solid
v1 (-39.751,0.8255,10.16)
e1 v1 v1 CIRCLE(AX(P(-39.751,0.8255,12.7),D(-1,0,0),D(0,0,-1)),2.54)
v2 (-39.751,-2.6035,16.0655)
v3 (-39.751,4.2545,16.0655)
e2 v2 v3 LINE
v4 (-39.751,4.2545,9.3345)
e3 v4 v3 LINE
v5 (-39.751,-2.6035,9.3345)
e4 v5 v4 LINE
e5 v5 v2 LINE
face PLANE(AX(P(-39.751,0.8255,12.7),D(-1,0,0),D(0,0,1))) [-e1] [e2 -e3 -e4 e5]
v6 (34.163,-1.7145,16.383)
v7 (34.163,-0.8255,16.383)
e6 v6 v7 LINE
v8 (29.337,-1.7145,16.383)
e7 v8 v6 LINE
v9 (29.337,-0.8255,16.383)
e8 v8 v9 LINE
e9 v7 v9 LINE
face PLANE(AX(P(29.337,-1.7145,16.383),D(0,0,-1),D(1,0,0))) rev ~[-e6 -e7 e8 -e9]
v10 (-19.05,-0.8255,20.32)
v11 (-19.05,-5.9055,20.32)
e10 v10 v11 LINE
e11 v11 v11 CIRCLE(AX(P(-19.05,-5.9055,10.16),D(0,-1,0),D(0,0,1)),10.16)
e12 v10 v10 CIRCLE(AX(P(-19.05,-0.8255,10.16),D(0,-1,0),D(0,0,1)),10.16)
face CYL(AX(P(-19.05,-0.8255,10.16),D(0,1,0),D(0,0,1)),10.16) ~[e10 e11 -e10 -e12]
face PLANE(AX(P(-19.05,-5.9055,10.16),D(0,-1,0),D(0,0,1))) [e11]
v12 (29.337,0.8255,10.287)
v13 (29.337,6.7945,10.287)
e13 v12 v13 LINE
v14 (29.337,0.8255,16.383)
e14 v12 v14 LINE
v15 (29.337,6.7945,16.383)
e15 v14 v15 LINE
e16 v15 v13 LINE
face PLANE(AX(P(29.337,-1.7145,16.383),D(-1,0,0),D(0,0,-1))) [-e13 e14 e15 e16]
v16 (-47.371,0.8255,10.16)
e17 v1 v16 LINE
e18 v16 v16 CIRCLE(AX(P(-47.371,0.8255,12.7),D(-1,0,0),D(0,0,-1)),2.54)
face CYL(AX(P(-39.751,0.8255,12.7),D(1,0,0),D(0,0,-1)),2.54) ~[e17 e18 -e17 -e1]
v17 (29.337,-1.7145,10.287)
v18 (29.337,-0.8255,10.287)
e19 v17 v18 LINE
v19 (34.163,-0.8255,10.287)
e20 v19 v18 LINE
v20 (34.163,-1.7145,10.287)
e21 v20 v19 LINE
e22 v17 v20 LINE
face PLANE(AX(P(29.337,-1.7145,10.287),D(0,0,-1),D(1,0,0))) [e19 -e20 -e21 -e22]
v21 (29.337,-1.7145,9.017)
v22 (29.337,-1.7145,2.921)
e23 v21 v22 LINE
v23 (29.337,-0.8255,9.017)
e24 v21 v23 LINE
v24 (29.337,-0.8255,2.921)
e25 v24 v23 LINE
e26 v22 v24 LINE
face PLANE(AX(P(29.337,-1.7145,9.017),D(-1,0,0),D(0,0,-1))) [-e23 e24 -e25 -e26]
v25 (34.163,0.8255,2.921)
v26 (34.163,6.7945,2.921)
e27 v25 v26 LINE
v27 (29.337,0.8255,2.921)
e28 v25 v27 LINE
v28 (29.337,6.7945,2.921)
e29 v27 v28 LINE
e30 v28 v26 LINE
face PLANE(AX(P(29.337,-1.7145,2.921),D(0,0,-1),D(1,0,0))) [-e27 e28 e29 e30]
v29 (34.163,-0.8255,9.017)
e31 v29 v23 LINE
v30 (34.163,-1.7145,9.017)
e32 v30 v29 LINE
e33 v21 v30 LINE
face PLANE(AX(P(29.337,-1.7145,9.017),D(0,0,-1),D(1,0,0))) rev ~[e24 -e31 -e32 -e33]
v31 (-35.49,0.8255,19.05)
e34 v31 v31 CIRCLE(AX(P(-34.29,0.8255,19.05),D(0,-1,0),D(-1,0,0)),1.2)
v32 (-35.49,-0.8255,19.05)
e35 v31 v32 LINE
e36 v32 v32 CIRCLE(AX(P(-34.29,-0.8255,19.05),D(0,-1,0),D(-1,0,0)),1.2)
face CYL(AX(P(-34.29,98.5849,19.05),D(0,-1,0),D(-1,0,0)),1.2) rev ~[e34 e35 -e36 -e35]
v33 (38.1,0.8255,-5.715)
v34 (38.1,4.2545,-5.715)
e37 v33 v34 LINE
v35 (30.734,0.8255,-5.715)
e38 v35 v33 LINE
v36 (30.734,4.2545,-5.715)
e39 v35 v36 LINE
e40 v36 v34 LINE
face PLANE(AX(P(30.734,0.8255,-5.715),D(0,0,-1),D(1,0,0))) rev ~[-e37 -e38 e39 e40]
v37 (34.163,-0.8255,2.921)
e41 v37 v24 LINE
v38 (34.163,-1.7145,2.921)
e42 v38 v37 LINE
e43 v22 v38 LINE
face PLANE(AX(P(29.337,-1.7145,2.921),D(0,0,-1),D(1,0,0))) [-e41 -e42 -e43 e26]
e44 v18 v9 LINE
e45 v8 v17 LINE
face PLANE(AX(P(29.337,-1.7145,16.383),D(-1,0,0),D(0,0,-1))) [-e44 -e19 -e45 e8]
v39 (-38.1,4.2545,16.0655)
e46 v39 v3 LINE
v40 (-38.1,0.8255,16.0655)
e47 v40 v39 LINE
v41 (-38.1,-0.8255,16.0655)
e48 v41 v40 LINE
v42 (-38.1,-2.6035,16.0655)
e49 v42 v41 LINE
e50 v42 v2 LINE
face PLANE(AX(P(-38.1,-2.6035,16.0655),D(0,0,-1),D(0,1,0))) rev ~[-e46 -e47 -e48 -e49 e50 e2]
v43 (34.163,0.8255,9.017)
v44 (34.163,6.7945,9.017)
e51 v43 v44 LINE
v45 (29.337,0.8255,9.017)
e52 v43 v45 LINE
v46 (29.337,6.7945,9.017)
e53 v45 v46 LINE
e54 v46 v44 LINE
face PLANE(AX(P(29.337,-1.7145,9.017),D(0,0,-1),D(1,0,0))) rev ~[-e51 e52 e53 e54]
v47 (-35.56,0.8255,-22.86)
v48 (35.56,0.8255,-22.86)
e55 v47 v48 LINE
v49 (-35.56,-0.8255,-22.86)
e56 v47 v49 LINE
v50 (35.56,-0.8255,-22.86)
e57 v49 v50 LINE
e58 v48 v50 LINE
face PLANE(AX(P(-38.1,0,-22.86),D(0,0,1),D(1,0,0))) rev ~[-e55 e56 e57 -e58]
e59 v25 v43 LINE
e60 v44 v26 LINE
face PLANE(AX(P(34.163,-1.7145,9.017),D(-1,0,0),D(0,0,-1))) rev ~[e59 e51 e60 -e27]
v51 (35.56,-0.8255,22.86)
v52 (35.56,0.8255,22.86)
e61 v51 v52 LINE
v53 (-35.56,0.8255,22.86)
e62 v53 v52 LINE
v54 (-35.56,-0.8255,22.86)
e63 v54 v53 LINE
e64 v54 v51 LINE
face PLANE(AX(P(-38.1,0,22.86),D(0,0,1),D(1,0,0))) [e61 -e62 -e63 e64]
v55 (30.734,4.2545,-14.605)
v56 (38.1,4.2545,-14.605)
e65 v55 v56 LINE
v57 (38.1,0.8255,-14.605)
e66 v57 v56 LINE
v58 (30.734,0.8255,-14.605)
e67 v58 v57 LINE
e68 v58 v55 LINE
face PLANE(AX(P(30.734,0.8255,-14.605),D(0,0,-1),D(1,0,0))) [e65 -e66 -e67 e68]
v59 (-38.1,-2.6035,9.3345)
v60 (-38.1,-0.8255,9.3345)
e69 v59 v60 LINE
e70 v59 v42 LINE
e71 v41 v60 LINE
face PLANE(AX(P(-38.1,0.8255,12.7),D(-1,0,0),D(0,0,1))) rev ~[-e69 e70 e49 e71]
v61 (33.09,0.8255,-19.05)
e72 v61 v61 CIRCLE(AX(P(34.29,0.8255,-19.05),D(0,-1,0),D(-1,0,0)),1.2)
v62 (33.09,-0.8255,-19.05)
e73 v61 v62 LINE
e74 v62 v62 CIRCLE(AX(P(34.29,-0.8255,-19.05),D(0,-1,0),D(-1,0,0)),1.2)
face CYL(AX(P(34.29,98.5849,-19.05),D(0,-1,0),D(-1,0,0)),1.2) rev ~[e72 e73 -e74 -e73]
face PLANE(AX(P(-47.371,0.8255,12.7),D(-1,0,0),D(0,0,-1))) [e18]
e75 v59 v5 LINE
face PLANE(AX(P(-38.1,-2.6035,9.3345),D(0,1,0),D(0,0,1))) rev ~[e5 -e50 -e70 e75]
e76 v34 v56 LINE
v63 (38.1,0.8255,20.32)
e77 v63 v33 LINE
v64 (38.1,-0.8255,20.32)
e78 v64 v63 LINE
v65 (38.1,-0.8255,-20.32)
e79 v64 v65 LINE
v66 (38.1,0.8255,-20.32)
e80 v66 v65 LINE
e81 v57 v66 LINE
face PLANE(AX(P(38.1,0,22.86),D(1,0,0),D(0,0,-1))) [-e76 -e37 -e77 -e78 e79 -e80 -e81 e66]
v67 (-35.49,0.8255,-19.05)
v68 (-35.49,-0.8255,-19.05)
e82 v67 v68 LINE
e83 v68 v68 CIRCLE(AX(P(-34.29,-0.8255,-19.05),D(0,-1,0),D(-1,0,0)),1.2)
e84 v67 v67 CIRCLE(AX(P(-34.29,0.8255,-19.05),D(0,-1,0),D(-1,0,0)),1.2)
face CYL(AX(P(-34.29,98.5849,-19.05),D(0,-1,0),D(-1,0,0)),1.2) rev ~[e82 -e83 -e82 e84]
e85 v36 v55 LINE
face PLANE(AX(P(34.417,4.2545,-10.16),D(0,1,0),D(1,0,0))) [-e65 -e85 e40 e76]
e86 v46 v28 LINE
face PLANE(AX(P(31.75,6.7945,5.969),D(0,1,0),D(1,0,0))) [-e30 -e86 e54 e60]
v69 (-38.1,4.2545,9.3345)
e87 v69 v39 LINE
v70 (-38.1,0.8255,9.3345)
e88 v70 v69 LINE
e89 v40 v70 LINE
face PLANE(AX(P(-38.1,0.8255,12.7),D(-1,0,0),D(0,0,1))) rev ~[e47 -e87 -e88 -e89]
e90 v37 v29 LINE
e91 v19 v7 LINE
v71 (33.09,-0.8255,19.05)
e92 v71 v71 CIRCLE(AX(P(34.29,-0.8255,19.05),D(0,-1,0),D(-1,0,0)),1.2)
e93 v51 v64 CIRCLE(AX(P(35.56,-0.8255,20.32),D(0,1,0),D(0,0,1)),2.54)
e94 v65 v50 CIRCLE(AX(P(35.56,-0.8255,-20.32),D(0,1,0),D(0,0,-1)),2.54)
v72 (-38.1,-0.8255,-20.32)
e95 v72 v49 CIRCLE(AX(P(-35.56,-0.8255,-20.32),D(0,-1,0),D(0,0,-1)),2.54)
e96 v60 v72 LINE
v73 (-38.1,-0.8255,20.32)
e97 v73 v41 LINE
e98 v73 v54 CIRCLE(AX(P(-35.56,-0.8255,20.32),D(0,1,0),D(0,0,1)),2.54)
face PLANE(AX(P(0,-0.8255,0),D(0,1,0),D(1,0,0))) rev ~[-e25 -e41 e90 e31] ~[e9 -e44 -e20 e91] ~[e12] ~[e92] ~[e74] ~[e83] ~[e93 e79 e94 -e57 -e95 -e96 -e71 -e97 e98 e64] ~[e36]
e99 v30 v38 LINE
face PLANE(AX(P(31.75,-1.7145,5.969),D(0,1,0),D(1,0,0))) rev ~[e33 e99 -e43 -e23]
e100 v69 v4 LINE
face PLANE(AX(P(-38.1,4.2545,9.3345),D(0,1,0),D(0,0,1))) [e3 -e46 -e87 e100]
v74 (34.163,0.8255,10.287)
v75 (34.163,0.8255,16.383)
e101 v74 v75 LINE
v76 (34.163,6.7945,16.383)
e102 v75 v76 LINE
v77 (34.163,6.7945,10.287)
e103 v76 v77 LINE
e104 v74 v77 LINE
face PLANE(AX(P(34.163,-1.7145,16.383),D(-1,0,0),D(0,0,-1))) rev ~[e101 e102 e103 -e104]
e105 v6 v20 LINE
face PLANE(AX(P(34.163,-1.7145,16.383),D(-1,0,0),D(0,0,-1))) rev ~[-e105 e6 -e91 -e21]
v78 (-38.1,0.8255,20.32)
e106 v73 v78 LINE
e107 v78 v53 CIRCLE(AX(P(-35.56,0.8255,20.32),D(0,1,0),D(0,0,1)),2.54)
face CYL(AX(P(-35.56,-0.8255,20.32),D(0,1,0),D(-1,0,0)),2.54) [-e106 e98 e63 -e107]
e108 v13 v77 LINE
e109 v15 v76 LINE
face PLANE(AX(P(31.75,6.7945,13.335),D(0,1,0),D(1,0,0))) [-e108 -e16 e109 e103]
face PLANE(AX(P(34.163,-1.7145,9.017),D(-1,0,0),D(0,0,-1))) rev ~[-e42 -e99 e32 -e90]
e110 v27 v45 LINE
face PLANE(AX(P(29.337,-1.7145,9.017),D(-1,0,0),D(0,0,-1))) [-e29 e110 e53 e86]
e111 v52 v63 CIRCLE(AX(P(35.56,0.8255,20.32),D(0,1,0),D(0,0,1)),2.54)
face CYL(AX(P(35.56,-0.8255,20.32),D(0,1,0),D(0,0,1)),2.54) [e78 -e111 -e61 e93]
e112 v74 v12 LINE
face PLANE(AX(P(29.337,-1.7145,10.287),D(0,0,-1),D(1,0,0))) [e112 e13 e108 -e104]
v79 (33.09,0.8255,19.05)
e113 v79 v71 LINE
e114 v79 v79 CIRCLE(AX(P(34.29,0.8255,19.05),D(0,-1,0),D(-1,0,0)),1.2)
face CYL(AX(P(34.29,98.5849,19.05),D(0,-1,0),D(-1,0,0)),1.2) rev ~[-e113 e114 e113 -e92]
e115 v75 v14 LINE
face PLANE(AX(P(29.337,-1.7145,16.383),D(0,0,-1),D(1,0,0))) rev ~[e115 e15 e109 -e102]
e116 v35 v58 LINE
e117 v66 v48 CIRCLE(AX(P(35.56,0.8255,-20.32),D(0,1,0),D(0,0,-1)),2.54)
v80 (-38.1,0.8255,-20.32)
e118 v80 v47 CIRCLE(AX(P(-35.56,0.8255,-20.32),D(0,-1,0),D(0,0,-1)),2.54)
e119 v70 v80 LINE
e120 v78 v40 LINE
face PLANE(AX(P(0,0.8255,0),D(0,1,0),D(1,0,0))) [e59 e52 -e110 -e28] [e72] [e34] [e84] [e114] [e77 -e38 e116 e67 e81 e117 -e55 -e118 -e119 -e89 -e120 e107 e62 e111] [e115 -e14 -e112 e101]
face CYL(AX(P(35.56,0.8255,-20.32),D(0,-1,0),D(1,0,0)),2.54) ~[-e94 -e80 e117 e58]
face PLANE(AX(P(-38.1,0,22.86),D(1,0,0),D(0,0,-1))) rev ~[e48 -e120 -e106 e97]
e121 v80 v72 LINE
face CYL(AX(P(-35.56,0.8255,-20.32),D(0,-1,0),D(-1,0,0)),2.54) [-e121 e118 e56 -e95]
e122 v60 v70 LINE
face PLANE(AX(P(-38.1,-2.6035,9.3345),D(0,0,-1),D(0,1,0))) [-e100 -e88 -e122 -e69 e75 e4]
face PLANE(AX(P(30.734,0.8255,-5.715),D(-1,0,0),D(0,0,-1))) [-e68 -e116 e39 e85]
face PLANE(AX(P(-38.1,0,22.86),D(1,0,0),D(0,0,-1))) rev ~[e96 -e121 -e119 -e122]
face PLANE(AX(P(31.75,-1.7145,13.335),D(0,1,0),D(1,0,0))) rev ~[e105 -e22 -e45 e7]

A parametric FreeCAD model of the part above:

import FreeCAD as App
import Part
import Sketcher

V = App.Vector
Q = App.Units.Quantity


def edges_at(feature, points):
    """Names of the edges that pass closest to the given points."""
    edges = feature.Shape.Edges
    near = lambda p: min(range(len(edges)), key=lambda i: edges[i].distToShape(Part.Vertex(*p))[0])
    return sorted({f"Edge{near(p) + 1}" for p in points})

doc = App.newDocument("Part")
body = doc.addObject("PartDesign::Body", "Body")

# Sketch on XZ plane
sketch1 = body.newObject("Sketcher::SketchObject", "Sketch")
sketch1.AttachmentSupport = (doc.getObject("XZ_Plane"), [""])
sketch1.MapMode = "FlatFace"
sketch1.addGeometry(Part.LineSegment(V(-38, -23, 0), V(-38, 23, 0)), False)
sketch1.addGeometry(Part.LineSegment(V(-38, 23, 0), V(38, 23, 0)), False)
sketch1.addGeometry(Part.LineSegment(V(38, 23, 0), V(38, -23, 0)), False)
sketch1.addGeometry(Part.LineSegment(V(38, -23, 0), V(-38, -23, 0)), False)
sketch1.addConstraint(Sketcher.Constraint("Coincident", 0, 2, 1, 1))
sketch1.addConstraint(Sketcher.Constraint("Coincident", 1, 2, 2, 1))
sketch1.addConstraint(Sketcher.Constraint("Coincident", 2, 2, 3, 1))
sketch1.addConstraint(Sketcher.Constraint("Coincident", 3, 2, 0, 1))
sketch1.addConstraint(Sketcher.Constraint("Vertical", 0))
sketch1.addConstraint(Sketcher.Constraint("Horizontal", 1))
sketch1.addConstraint(Sketcher.Constraint("Vertical", 2))
sketch1.addConstraint(Sketcher.Constraint("Horizontal", 3))
sketch1.addConstraint(Sketcher.Constraint("Symmetric", 0, 2, 2, 2, -1, 1))
sketch1.addConstraint(Sketcher.Constraint("DistanceX", 1, 1, 1, 2, Q("3 in")))
sketch1.addConstraint(Sketcher.Constraint("DistanceY", 0, 1, 0, 2, Q("1.8 in")))
pad1 = body.newObject("PartDesign::Pad", "Pad")
pad1.Profile = sketch1
pad1.Length = Q("0.065 in")
pad1.Midplane = True

# Sketch on XZ plane
sketch2 = body.newObject("Sketcher::SketchObject", "Sketch001")
sketch2.AttachmentSupport = (doc.getObject("XZ_Plane"), [""])
sketch2.MapMode = "FlatFace"
sketch2.AttachmentOffset = App.Placement(V(0, 0, 0.0325 * 25.4), App.Rotation())
sketch2.addGeometry(Part.Circle(V(-19, 10, 0), V(0, 0, 1), 10), False)
sketch2.addConstraint(Sketcher.Constraint("Diameter", 0, Q("0.8 in")))
sketch2.addConstraint(Sketcher.Constraint("DistanceY", -1, 1, 0, 3, Q("0.4 in")))
sketch2.addConstraint(Sketcher.Constraint("DistanceX", 0, 3, -1, 1, Q("0.75 in")))
pad2 = body.newObject("PartDesign::Pad", "Pad001")
pad2.Profile = sketch2
pad2.Length = Q("0.2 in")

# Sketch on YZ plane
sketch3 = body.newObject("Sketcher::SketchObject", "Sketch002")
sketch3.AttachmentSupport = (doc.getObject("YZ_Plane"), [""])
sketch3.MapMode = "FlatFace"
sketch3.AttachmentOffset = App.Placement(V(0, 0, -1.5 * 25.4), App.Rotation())
sketch3.addGeometry(Part.LineSegment(V(4, 9, 0), V(-3, 9, 0)), False)
sketch3.addGeometry(Part.LineSegment(V(-3, 9, 0), V(-3, 16, 0)), False)
sketch3.addGeometry(Part.LineSegment(V(-3, 16, 0), V(4, 16, 0)), False)
sketch3.addGeometry(Part.LineSegment(V(4, 16, 0), V(4, 9, 0)), False)
sketch3.addConstraint(Sketcher.Constraint("Coincident", 0, 2, 1, 1))
sketch3.addConstraint(Sketcher.Constraint("Coincident", 1, 2, 2, 1))
sketch3.addConstraint(Sketcher.Constraint("Coincident", 2, 2, 3, 1))
sketch3.addConstraint(Sketcher.Constraint("Coincident", 3, 2, 0, 1))
sketch3.addConstraint(Sketcher.Constraint("Horizontal", 0))
sketch3.addConstraint(Sketcher.Constraint("Vertical", 1))
sketch3.addConstraint(Sketcher.Constraint("Horizontal", 2))
sketch3.addConstraint(Sketcher.Constraint("Vertical", 3))
sketch3.addConstraint(Sketcher.Constraint("DistanceX", 0, 2, 0, 1, Q("0.27 in")))
sketch3.addConstraint(Sketcher.Constraint("DistanceY", 1, 1, 1, 2, Q("0.265 in")))
sketch3.addConstraint(Sketcher.Constraint("DistanceX", 0, 2, -1, 1, Q("0.1025 in")))
sketch3.addConstraint(Sketcher.Constraint("DistanceY", -1, 1, 0, 2, Q("0.3675 in")))
pad3 = body.newObject("PartDesign::Pad", "Pad002")
pad3.Profile = sketch3
pad3.Length = Q("0.065 in")
pad3.Reversed = True

# Sketch on YZ plane
sketch4 = body.newObject("Sketcher::SketchObject", "Sketch003")
sketch4.AttachmentSupport = (doc.getObject("YZ_Plane"), [""])
sketch4.MapMode = "FlatFace"
sketch4.AttachmentOffset = App.Placement(V(0, 0, -1.565 * 25.4), App.Rotation())
sketch4.addGeometry(Part.Circle(V(0.8, 12.7, 0), V(0, 0, 1), 2.5), False)
sketch4.addConstraint(Sketcher.Constraint("Diameter", 0, Q("0.2 in")))
sketch4.addConstraint(Sketcher.Constraint("DistanceY", -1, 1, 0, 3, Q("0.5 in")))
sketch4.addConstraint(Sketcher.Constraint("DistanceX", -1, 1, 0, 3, Q("0.0325 in")))
pad4 = body.newObject("PartDesign::Pad", "Pad003")
pad4.Profile = sketch4
pad4.Length = Q("0.3 in")
pad4.Reversed = True

# Sketch on XZ plane
sketch5 = body.newObject("Sketcher::SketchObject", "Sketch004")
sketch5.AttachmentSupport = (doc.getObject("XZ_Plane"), [""])
sketch5.MapMode = "FlatFace"
sketch5.AttachmentOffset = App.Placement(V(0, 0, -0.0325 * 25.4), App.Rotation())
sketch5.addGeometry(Part.LineSegment(V(29.3, 10.3, 0), V(29.3, 16.4, 0)), False)
sketch5.addGeometry(Part.LineSegment(V(29.3, 16.4, 0), V(34.2, 16.4, 0)), False)
sketch5.addGeometry(Part.LineSegment(V(34.2, 16.4, 0), V(34.2, 10.3, 0)), False)
sketch5.addGeometry(Part.LineSegment(V(34.2, 10.3, 0), V(29.3, 10.3, 0)), False)
sketch5.addGeometry(Part.LineSegment(V(29.3, 2.9, 0), V(29.3, 9, 0)), False)
sketch5.addGeometry(Part.LineSegment(V(29.3, 9, 0), V(34.2, 9, 0)), False)
sketch5.addGeometry(Part.LineSegment(V(34.2, 9, 0), V(34.2, 2.9, 0)), False)
sketch5.addGeometry(Part.LineSegment(V(34.2, 2.9, 0), V(29.3, 2.9, 0)), False)
sketch5.addConstraint(Sketcher.Constraint("Coincident", 0, 2, 1, 1))
sketch5.addConstraint(Sketcher.Constraint("Coincident", 1, 2, 2, 1))
sketch5.addConstraint(Sketcher.Constraint("Coincident", 2, 2, 3, 1))
sketch5.addConstraint(Sketcher.Constraint("Coincident", 3, 2, 0, 1))
sketch5.addConstraint(Sketcher.Constraint("Coincident", 4, 2, 5, 1))
sketch5.addConstraint(Sketcher.Constraint("Coincident", 5, 2, 6, 1))
sketch5.addConstraint(Sketcher.Constraint("Coincident", 6, 2, 7, 1))
sketch5.addConstraint(Sketcher.Constraint("Coincident", 7, 2, 4, 1))
sketch5.addConstraint(Sketcher.Constraint("Vertical", 0))
sketch5.addConstraint(Sketcher.Constraint("Horizontal", 1))
sketch5.addConstraint(Sketcher.Constraint("Vertical", 2))
sketch5.addConstraint(Sketcher.Constraint("Horizontal", 3))
sketch5.addConstraint(Sketcher.Constraint("Vertical", 4))
sketch5.addConstraint(Sketcher.Constraint("Horizontal", 5))
sketch5.addConstraint(Sketcher.Constraint("Vertical", 6))
sketch5.addConstraint(Sketcher.Constraint("Horizontal", 7))
sketch5.addConstraint(Sketcher.Constraint("Vertical", 3, 2, 4, 2))
sketch5.addConstraint(Sketcher.Constraint("Vertical", 2, 2, 5, 2))
sketch5.addConstraint(Sketcher.Constraint("Equal", 2, 4))
sketch5.addConstraint(Sketcher.Constraint("DistanceX", 1, 1, 1, 2, Q("0.19 in")))
sketch5.addConstraint(Sketcher.Constraint("DistanceY", 0, 1, 0, 2, Q("0.24 in")))
sketch5.addConstraint(Sketcher.Constraint("DistanceY", 4, 2, 3, 2, Q("0.05 in")))
sketch5.addConstraint(Sketcher.Constraint("DistanceX", -1, 1, 0, 2, Q("1.155 in")))
sketch5.addConstraint(Sketcher.Constraint("DistanceY", -1, 1, 0, 2, Q("0.645 in")))
pad5 = body.newObject("PartDesign::Pad", "Pad004")
pad5.Profile = sketch5
pad5.Type = "TwoLengths"
pad5.Length = Q("0.235 in")
pad5.Length2 = Q("0.1 in")
pad5.Reversed = True

# Sketch on XZ plane
sketch6 = body.newObject("Sketcher::SketchObject", "Sketch005")
sketch6.AttachmentSupport = (doc.getObject("XZ_Plane"), [""])
sketch6.MapMode = "FlatFace"
sketch6.AttachmentOffset = App.Placement(V(0, 0, -0.0325 * 25.4), App.Rotation())
sketch6.addGeometry(Part.LineSegment(V(31, -15, 0), V(31, -6, 0)), False)
sketch6.addGeometry(Part.LineSegment(V(31, -6, 0), V(38, -6, 0)), False)
sketch6.addGeometry(Part.LineSegment(V(38, -6, 0), V(38, -15, 0)), False)
sketch6.addGeometry(Part.LineSegment(V(38, -15, 0), V(31, -15, 0)), False)
sketch6.addConstraint(Sketcher.Constraint("Coincident", 0, 2, 1, 1))
sketch6.addConstraint(Sketcher.Constraint("Coincident", 1, 2, 2, 1))
sketch6.addConstraint(Sketcher.Constraint("Coincident", 2, 2, 3, 1))
sketch6.addConstraint(Sketcher.Constraint("Coincident", 3, 2, 0, 1))
sketch6.addConstraint(Sketcher.Constraint("Vertical", 0))
sketch6.addConstraint(Sketcher.Constraint("Horizontal", 1))
sketch6.addConstraint(Sketcher.Constraint("Vertical", 2))
sketch6.addConstraint(Sketcher.Constraint("Horizontal", 3))
sketch6.addConstraint(Sketcher.Constraint("DistanceX", 1, 1, 1, 2, Q("0.29 in")))
sketch6.addConstraint(Sketcher.Constraint("DistanceY", 0, 1, 0, 2, Q("0.35 in")))
sketch6.addConstraint(Sketcher.Constraint("DistanceX", -1, 1, 1, 2, Q("1.5 in")))
sketch6.addConstraint(Sketcher.Constraint("DistanceY", 0, 2, -1, 1, Q("0.225 in")))
pad6 = body.newObject("PartDesign::Pad", "Pad005")
pad6.Profile = sketch6
pad6.Length = Q("0.135 in")
pad6.Reversed = True

# Sketch on XZ plane
sketch7 = body.newObject("Sketcher::SketchObject", "Sketch006")
sketch7.AttachmentSupport = (doc.getObject("XZ_Plane"), [""])
sketch7.MapMode = "FlatFace"
sketch7.AttachmentOffset = App.Placement(V(0, 0, -0.0325 * 25.4), App.Rotation())
sketch7.addGeometry(Part.Circle(V(-34.3, -19.1, 0), V(0, 0, 1), 1.2), False)
sketch7.addGeometry(Part.Circle(V(34.3, -19.1, 0), V(0, 0, 1), 1.2), False)
sketch7.addGeometry(Part.Circle(V(-34.3, 19.1, 0), V(0, 0, 1), 1.2), False)
sketch7.addGeometry(Part.Circle(V(34.3, 19.1, 0), V(0, 0, 1), 1.2), False)
sketch7.addConstraint(Sketcher.Constraint("Equal", 0, 1))
sketch7.addConstraint(Sketcher.Constraint("Equal", 1, 2))
sketch7.addConstraint(Sketcher.Constraint("Equal", 2, 3))
sketch7.addConstraint(Sketcher.Constraint("Symmetric", 1, 3, 2, 3, -1, 1))
sketch7.addConstraint(Sketcher.Constraint("Symmetric", 0, 3, 3, 3, -1, 1))
sketch7.addConstraint(Sketcher.Constraint("Symmetric", 0, 3, 1, 3, -2))
sketch7.addConstraint(Sketcher.Constraint("DistanceX", 0, 3, 1, 3, Q("2.7 in")))
sketch7.addConstraint(Sketcher.Constraint("DistanceY", 0, 3, 2, 3, Q("1.5 in")))
sketch7.addConstraint(Sketcher.Constraint("Diameter", 0, 2.4))
doc.recompute()
hole = body.newObject("PartDesign::Hole", "Hole")
hole.Profile = sketch7
hole.ThreadType = "None"
hole.Diameter = 2.4
hole.DepthType = "ThroughAll"
hole.Reversed = True
doc.recompute()

fillet = body.newObject("PartDesign::Fillet", "Fillet")
fillet.Base = (hole, edges_at(hole, [
    (38.1, 0, 22.86),
    (-38.1, 0, 22.86),
    (-38.1, 0, -22.86),
    (38.1, 0, -22.86),
]))
fillet.Radius = Q("0.1 in")

doc.recompute()
